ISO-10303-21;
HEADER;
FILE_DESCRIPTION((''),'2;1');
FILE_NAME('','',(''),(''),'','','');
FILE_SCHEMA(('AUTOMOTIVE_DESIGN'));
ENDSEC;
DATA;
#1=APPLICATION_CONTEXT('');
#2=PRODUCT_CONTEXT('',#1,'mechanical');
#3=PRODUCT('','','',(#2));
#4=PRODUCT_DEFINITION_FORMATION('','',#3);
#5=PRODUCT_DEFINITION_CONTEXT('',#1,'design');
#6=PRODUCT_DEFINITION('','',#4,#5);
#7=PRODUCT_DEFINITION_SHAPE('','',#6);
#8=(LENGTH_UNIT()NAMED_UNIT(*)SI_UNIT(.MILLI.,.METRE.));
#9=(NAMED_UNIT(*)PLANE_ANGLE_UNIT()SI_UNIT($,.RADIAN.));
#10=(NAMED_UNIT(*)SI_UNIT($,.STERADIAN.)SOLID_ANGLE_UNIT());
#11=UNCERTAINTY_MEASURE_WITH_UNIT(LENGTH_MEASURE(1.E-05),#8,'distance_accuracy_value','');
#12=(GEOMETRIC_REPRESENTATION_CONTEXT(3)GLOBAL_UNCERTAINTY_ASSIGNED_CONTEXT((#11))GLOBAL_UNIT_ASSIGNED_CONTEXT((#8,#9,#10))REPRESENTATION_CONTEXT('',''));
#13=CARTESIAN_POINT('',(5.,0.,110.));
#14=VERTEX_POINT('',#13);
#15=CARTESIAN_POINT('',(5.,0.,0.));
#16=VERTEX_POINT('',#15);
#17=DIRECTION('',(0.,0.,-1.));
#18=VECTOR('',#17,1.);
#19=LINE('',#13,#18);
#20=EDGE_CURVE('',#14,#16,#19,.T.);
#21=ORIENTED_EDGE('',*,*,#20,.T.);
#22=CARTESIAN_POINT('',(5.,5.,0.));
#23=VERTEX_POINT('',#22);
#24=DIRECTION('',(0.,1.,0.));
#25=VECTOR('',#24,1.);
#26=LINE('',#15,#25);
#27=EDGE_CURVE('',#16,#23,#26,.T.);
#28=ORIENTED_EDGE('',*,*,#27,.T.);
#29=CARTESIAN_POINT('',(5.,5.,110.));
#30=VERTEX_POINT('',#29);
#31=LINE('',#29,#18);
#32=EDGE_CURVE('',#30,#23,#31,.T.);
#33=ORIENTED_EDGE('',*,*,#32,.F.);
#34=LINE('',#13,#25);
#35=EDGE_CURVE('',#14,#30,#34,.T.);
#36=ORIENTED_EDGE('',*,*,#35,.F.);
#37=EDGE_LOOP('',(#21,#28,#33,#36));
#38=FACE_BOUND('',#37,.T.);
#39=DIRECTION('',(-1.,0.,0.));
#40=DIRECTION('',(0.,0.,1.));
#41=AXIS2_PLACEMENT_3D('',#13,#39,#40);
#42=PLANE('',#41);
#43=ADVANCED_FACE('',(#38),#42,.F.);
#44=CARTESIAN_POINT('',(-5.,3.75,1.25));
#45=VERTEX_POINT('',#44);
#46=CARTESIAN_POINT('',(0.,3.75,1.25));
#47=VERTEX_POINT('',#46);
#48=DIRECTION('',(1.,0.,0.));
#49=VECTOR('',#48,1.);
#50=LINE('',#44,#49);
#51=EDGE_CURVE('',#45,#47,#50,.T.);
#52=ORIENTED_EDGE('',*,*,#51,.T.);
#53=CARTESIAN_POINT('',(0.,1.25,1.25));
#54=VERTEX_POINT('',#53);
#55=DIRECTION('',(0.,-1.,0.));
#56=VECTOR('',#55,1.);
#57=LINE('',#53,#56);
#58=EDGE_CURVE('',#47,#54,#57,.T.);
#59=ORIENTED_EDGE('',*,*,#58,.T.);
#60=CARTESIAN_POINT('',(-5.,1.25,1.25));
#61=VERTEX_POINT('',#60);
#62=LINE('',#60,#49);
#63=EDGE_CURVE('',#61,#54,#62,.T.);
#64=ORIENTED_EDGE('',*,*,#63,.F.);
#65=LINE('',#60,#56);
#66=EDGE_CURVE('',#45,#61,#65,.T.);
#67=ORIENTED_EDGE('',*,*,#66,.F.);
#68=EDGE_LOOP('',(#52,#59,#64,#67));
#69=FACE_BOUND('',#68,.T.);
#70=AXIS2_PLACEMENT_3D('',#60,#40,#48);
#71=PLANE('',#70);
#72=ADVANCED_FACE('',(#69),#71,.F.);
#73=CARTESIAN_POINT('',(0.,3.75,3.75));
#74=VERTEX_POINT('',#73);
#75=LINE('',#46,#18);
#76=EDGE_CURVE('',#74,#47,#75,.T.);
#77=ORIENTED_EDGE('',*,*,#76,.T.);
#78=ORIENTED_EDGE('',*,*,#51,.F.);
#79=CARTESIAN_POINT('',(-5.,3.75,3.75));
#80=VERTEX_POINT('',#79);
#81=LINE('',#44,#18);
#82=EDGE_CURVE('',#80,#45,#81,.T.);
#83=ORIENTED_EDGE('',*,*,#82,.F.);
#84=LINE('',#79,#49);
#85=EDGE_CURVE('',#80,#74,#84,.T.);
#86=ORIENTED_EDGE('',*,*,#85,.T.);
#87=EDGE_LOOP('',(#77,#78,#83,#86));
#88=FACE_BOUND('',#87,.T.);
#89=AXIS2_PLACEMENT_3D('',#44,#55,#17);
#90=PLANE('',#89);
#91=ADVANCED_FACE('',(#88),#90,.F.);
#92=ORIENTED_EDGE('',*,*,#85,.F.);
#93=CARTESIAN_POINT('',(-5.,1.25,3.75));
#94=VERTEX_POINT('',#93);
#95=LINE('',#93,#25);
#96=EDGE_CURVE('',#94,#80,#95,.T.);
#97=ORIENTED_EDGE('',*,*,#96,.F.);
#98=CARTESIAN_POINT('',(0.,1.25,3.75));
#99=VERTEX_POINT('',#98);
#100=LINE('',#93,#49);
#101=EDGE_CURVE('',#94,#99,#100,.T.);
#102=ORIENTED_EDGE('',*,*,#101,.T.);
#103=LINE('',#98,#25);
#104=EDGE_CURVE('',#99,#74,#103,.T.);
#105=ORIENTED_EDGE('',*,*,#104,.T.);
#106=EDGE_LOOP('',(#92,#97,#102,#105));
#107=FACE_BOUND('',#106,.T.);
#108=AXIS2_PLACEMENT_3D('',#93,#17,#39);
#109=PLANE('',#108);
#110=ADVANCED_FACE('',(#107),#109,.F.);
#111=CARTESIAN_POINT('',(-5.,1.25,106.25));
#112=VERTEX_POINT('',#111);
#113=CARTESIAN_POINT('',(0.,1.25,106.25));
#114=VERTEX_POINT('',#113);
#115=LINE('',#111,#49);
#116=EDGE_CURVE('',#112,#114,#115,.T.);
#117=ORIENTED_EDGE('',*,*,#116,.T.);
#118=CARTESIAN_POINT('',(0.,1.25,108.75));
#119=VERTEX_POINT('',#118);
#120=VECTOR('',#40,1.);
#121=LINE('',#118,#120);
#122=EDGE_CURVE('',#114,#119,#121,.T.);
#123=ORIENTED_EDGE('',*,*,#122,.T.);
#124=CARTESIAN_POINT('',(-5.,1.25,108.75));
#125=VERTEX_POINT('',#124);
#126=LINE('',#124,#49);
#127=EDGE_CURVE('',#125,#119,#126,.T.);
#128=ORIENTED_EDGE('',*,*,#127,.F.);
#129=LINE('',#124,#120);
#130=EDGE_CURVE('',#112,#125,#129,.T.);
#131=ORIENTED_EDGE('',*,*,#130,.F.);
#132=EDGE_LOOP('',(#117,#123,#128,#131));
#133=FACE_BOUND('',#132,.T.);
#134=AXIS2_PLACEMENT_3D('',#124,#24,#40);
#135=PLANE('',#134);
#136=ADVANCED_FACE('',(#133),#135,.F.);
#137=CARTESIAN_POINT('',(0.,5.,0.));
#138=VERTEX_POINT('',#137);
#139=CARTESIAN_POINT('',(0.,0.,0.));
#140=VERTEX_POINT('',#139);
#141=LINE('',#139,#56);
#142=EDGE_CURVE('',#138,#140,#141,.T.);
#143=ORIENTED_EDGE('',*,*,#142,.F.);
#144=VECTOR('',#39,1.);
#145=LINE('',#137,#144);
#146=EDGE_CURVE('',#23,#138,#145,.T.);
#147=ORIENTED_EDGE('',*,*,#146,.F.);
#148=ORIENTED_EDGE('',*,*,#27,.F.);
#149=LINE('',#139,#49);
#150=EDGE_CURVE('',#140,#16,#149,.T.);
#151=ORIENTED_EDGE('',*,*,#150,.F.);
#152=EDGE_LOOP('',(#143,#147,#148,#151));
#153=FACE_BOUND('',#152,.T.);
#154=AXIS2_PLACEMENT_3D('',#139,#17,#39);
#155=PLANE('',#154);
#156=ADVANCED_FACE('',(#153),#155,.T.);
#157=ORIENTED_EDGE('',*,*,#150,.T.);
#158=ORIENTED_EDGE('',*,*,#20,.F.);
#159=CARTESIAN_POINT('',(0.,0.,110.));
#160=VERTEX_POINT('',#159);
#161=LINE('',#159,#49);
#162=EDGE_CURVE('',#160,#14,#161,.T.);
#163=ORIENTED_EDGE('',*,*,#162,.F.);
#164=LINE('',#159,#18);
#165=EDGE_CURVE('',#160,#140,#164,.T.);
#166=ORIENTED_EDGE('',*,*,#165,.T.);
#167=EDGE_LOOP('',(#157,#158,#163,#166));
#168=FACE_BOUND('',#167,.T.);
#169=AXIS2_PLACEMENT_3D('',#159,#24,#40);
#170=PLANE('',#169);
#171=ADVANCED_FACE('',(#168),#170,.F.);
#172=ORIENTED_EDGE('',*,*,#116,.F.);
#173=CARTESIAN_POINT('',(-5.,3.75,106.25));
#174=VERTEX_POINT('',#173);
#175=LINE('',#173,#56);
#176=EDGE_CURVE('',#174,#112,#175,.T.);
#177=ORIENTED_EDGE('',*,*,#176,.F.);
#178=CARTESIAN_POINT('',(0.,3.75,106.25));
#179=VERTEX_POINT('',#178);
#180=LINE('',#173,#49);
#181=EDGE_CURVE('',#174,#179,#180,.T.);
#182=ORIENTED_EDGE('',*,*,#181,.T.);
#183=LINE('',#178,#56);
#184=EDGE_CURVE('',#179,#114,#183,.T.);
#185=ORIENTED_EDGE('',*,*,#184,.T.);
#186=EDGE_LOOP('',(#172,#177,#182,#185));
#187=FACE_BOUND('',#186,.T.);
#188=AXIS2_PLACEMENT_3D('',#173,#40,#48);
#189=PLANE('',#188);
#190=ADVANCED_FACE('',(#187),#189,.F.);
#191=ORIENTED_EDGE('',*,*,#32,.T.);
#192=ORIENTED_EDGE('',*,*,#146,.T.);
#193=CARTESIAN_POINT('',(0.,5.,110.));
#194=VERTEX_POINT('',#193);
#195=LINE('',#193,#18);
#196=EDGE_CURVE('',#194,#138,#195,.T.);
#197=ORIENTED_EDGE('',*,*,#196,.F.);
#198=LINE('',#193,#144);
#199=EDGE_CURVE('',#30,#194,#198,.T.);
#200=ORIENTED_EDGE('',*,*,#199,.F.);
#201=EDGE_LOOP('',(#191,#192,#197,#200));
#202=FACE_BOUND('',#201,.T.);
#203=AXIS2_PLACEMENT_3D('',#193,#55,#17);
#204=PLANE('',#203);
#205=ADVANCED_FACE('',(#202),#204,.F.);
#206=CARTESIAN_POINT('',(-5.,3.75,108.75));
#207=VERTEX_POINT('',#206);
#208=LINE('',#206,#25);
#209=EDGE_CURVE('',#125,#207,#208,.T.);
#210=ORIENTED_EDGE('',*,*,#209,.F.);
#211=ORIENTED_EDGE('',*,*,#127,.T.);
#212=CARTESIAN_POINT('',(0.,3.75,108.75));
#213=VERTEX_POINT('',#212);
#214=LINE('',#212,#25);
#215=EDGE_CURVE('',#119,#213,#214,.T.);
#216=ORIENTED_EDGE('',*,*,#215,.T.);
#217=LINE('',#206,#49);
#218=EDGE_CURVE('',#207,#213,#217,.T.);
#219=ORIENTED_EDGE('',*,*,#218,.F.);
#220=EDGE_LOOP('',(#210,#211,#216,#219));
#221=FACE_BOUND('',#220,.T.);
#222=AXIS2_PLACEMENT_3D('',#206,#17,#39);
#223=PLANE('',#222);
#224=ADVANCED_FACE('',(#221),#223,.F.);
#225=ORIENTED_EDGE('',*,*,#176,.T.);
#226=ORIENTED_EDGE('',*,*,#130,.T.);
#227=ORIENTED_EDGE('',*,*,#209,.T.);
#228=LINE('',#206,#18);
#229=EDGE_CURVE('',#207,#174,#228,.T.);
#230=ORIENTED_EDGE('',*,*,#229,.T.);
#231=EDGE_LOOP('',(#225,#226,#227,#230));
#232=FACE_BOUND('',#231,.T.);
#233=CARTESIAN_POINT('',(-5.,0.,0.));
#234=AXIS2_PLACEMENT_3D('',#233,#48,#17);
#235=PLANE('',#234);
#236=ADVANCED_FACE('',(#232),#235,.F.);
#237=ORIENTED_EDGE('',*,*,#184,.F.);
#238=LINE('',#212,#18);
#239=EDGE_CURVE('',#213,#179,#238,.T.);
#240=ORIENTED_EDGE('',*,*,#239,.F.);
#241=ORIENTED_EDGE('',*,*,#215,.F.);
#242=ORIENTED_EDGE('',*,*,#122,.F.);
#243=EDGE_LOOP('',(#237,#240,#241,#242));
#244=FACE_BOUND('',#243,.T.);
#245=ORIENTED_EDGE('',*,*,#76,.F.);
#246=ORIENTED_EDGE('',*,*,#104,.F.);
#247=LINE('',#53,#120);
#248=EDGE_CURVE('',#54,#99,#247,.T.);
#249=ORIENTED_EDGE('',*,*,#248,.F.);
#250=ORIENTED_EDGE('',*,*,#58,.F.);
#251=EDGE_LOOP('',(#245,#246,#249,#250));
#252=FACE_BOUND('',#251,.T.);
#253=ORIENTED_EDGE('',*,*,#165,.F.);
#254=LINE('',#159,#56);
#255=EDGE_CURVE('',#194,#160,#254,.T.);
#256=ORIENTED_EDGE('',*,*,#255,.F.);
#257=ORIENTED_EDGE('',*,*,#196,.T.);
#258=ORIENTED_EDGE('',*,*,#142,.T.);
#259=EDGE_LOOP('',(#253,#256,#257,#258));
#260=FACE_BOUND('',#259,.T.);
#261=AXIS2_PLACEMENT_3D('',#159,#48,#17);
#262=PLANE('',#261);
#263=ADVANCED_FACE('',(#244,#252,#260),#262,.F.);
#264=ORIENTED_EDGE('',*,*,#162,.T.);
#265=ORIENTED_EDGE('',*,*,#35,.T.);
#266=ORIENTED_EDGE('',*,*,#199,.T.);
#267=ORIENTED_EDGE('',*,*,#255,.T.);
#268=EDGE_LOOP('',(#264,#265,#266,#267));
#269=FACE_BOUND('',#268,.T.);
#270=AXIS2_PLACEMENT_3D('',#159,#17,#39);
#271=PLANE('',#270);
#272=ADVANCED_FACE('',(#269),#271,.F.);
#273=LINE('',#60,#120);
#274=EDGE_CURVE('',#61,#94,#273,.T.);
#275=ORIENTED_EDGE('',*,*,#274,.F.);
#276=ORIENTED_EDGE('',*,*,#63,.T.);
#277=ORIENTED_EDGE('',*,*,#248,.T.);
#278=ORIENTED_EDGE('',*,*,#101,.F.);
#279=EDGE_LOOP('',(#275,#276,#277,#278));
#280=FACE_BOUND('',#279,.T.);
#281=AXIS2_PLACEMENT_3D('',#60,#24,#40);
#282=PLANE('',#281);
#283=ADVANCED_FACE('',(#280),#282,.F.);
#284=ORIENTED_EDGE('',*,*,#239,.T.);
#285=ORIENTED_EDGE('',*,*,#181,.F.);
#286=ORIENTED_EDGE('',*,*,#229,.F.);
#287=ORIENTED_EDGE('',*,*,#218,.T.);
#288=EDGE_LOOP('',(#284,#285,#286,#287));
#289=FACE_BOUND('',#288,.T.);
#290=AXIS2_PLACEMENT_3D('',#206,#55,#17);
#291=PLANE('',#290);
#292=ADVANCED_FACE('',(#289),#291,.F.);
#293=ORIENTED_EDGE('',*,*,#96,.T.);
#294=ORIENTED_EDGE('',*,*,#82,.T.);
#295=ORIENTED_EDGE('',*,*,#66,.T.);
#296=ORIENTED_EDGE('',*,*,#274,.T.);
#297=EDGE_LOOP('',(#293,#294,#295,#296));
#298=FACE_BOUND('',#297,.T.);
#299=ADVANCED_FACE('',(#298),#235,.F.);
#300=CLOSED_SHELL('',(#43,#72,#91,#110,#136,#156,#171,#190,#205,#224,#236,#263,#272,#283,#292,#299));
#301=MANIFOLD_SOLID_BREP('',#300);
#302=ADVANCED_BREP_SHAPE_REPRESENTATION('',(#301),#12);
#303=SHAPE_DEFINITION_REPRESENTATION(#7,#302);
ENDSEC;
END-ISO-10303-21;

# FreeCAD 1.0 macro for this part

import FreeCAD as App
import Part
import Sketcher

V = App.Vector


def add_polygon(sketch, points):
    """Adds a closed chain of lines whose ends are joined by coincident constraints."""
    first, n = sketch.GeometryCount, len(points)
    for a, b in zip(points, points[1:] + points[:1]):
        sketch.addGeometry(Part.LineSegment(App.Vector(*a, 0), App.Vector(*b, 0)), False)
    for i in range(n):
        sketch.addConstraint(Sketcher.Constraint("Coincident", first + i, 2, first + (i + 1) % n, 1))

doc = App.newDocument("Part")
body = doc.addObject("PartDesign::Body", "Body")

sketch1 = body.newObject("Sketcher::SketchObject", "Sketch")
sketch1.AttachmentSupport = (doc.getObject("XY_Plane"), [""])
sketch1.MapMode = "FlatFace"
add_polygon(sketch1, [(0, 5), (0, 0), (5, 0), (5, 5)])
sketch1.addConstraint([
    Sketcher.Constraint("Vertical", 0),
    Sketcher.Constraint("Horizontal", 1),
    Sketcher.Constraint("Vertical", 2),
    Sketcher.Constraint("Horizontal", 3),
    Sketcher.Constraint("Coincident", 0, 2, -1, 1),
    Sketcher.Constraint("Equal", 3, 0),
    Sketcher.Constraint("DistanceX", 1, 1, 1, 2, 5.0),
])
pad1 = body.newObject("PartDesign::Pad", "Pad")
pad1.Profile = sketch1
pad1.Length = 110

sketch2 = body.newObject("Sketcher::SketchObject", "Sketch001")
sketch2.AttachmentSupport = (doc.getObject("YZ_Plane"), [""])
sketch2.MapMode = "FlatFace"
add_polygon(sketch2, [(3.75, 1.25), (1.25, 1.25), (1.25, 3.75), (3.75, 3.75)])
add_polygon(sketch2, [(3.75, 106.25), (1.25, 106.25), (1.25, 108.75), (3.75, 108.75)])
sketch2.addConstraint([
    Sketcher.Constraint("Horizontal", 0),
    Sketcher.Constraint("Vertical", 1),
    Sketcher.Constraint("Horizontal", 2),
    Sketcher.Constraint("Vertical", 3),
    Sketcher.Constraint("Horizontal", 4),
    Sketcher.Constraint("Vertical", 5),
    Sketcher.Constraint("Horizontal", 6),
    Sketcher.Constraint("Vertical", 7),
    Sketcher.Constraint("Vertical", 1, 2, 4, 2),
    Sketcher.Constraint("Vertical", 3, 2, 6, 2),
    Sketcher.Constraint("Equal", 6, 1),
    Sketcher.Constraint("Equal", 3, 5),
    Sketcher.Constraint("DistanceX", 0, 2, 0, 1, 2.5),
    Sketcher.Constraint("DistanceY", 0, 2, 4, 2, 105.0),
    Sketcher.Constraint("DistanceX", -1, 1, 0, 2, 1.25),
    Sketcher.Constraint("DistanceY", -1, 1, 0, 2, 1.25),
])
pad2 = body.newObject("PartDesign::Pad", "Pad001")
pad2.Profile = sketch2
pad2.Length = 5
pad2.Reversed = True

doc.recompute()
